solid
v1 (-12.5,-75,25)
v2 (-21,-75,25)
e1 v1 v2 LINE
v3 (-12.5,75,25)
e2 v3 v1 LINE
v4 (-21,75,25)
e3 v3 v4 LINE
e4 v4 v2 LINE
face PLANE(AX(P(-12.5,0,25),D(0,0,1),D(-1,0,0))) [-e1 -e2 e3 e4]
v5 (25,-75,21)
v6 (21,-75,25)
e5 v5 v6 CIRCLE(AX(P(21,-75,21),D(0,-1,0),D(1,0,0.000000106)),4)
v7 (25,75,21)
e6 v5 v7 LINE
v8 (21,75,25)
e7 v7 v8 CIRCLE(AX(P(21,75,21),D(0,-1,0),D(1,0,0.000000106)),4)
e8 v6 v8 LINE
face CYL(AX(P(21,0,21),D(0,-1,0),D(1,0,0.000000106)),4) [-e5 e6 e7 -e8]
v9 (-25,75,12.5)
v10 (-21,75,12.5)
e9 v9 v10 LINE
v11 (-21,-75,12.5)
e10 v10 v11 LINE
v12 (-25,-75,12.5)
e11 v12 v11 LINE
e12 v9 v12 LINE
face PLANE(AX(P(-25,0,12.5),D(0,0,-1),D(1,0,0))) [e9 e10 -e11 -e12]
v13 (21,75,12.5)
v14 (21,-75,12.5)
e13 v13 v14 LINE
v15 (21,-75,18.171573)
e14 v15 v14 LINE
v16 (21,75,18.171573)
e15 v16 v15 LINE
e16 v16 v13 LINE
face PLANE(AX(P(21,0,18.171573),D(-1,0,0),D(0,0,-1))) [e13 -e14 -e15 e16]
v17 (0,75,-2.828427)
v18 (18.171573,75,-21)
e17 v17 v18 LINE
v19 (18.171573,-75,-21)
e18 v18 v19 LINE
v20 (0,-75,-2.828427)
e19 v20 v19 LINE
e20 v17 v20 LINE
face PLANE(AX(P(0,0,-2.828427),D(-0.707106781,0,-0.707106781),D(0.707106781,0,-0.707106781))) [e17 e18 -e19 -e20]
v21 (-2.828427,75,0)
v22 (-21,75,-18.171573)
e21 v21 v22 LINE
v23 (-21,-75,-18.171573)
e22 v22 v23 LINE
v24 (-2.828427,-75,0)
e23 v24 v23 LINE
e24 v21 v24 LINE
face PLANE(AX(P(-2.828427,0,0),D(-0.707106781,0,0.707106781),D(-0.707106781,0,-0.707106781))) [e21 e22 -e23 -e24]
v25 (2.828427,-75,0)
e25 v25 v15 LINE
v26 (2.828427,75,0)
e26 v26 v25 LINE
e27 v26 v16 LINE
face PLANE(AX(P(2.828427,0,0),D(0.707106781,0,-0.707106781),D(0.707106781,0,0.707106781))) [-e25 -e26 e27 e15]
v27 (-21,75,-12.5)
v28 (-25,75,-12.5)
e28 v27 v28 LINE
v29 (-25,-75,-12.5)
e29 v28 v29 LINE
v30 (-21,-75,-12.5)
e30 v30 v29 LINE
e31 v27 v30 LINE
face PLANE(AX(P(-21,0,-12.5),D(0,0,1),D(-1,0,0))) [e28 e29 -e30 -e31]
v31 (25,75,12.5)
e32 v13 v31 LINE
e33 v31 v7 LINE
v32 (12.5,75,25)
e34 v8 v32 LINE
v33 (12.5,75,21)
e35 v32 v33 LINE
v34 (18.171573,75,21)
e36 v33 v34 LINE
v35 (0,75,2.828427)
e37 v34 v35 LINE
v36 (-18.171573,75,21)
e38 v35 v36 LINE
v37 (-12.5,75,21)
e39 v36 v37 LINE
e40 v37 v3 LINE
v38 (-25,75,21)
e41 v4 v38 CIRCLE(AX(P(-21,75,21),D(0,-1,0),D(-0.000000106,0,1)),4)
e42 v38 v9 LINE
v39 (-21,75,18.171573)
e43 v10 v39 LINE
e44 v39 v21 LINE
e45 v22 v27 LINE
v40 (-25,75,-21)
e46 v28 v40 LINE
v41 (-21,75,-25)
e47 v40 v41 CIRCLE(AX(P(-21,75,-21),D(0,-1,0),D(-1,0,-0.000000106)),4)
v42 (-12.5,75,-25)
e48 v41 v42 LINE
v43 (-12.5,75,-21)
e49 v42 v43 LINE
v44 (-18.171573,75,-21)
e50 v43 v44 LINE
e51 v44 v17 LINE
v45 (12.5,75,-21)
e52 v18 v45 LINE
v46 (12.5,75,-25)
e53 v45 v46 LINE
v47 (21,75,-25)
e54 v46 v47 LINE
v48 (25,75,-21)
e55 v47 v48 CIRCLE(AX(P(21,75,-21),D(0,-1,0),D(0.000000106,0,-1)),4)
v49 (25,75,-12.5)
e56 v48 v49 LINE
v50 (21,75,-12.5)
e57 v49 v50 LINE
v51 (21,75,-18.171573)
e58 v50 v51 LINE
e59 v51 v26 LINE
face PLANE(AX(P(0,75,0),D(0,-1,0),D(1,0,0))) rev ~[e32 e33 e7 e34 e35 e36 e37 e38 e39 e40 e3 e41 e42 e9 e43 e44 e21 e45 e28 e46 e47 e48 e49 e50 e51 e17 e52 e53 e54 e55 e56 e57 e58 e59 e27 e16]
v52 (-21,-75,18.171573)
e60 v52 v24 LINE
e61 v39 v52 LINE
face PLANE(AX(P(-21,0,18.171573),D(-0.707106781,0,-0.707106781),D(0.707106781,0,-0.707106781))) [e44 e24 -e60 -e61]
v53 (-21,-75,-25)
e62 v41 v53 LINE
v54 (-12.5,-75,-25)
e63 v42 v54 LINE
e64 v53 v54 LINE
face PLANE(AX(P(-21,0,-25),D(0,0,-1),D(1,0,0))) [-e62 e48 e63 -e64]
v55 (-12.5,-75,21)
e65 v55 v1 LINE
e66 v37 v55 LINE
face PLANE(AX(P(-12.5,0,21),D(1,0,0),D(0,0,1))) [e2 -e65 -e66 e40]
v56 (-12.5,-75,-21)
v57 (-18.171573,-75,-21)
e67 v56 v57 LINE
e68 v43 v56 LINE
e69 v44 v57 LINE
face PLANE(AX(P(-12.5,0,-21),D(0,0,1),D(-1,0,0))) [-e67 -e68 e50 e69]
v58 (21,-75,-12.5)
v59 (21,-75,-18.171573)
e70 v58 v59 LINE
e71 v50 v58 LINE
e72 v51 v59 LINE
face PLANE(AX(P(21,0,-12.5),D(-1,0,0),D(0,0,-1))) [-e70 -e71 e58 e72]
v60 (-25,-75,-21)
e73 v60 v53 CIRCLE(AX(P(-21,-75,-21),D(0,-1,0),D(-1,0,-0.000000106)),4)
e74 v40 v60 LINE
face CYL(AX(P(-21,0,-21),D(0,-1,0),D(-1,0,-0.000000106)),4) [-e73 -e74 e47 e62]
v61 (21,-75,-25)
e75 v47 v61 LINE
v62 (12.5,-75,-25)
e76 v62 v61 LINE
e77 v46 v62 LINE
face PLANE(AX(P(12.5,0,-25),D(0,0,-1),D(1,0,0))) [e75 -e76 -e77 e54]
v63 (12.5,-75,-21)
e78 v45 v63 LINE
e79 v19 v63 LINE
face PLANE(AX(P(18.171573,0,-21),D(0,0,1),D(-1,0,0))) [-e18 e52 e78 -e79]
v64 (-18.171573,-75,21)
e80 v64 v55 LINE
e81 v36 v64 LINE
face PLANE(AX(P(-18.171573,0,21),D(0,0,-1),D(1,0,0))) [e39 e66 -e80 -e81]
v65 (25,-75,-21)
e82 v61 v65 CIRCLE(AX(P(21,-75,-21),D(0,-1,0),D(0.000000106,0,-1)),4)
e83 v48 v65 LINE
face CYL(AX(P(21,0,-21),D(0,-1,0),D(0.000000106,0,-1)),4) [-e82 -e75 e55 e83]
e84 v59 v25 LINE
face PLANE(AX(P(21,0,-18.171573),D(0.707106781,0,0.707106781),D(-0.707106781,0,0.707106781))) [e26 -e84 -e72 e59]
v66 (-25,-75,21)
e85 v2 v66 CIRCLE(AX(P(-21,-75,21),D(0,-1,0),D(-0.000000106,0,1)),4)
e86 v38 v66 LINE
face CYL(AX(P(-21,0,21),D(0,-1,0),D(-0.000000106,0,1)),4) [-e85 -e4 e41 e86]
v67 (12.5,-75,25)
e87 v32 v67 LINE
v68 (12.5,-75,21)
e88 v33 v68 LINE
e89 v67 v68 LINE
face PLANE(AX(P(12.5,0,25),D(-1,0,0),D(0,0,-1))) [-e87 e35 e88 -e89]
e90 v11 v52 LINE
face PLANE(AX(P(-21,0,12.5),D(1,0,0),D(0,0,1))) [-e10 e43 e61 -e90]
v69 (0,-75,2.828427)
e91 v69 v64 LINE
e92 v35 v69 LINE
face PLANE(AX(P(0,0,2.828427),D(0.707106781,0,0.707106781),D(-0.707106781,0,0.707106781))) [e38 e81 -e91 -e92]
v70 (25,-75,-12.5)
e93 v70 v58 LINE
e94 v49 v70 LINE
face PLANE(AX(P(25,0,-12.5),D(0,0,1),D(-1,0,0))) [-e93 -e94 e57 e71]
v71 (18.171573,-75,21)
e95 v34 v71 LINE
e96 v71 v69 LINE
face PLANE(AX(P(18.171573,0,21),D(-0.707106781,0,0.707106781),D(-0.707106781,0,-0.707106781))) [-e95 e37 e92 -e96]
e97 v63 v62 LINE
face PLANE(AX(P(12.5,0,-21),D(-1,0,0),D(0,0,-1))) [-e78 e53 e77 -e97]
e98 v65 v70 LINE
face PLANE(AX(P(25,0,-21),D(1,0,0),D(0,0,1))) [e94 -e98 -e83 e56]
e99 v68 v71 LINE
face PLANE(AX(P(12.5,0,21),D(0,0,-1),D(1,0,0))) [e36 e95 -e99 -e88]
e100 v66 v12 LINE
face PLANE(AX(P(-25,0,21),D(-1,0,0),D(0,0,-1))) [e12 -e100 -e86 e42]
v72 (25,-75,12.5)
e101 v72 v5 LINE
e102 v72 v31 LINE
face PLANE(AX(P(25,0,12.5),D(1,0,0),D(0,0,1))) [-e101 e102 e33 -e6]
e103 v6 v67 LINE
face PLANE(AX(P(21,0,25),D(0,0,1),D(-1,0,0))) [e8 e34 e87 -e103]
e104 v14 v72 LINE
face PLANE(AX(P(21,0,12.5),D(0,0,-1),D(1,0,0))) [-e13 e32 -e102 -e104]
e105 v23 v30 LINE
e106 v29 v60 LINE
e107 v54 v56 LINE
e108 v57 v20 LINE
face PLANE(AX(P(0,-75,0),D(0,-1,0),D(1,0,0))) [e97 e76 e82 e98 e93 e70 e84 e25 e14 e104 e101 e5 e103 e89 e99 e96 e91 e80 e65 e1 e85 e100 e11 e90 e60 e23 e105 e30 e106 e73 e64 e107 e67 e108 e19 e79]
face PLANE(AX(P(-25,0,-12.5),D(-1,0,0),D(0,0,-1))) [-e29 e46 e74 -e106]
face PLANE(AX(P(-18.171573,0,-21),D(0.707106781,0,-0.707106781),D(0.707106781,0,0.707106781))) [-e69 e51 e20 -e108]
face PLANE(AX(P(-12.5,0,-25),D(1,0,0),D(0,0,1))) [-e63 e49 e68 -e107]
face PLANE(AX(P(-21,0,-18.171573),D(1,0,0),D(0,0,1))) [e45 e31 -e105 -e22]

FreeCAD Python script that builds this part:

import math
import FreeCAD as App
import Part
import Sketcher

doc = App.newDocument("Part")
body = doc.addObject("PartDesign::Body", "Body")

sketch1 = doc.addObject("Sketcher::SketchObject", "Sketch")
body.addObject(sketch1)
sketch1.AttachmentSupport = (doc.XZ_Plane, [""])
sketch1.MapMode = "FlatFace"
sketch1.addGeometry(Part.LineSegment(App.Vector(21, 25, 0), App.Vector(12.5, 25, 0)), False)
sketch1.addGeometry(Part.LineSegment(App.Vector(12.5, 25, 0), App.Vector(12.5, 21, 0)), False)
sketch1.addGeometry(Part.LineSegment(App.Vector(12.5, 21, 0), App.Vector(18.171573, 21, 0)), False)
sketch1.addGeometry(Part.LineSegment(App.Vector(18.171573, 21, 0), App.Vector(0, 2.828427, 0)), False)
sketch1.addGeometry(Part.LineSegment(App.Vector(0, 2.828427, 0), App.Vector(-18.171573, 21, 0)), False)
sketch1.addGeometry(Part.LineSegment(App.Vector(-18.171573, 21, 0), App.Vector(-12.5, 21, 0)), False)
sketch1.addGeometry(Part.LineSegment(App.Vector(-12.5, 21, 0), App.Vector(-12.5, 25, 0)), False)
sketch1.addGeometry(Part.LineSegment(App.Vector(-12.5, 25, 0), App.Vector(-21, 25, 0)), False)
sketch1.addGeometry(Part.ArcOfCircle(Part.Circle(App.Vector(-21, 21, 0), App.Vector(0, 0, 1), 4), math.radians(90.000006), math.radians(179.999994)), False)
sketch1.addGeometry(Part.LineSegment(App.Vector(-25, 21, 0), App.Vector(-25, 12.5, 0)), False)
sketch1.addGeometry(Part.LineSegment(App.Vector(-25, 12.5, 0), App.Vector(-21, 12.5, 0)), False)
sketch1.addGeometry(Part.LineSegment(App.Vector(-21, 12.5, 0), App.Vector(-21, 18.171573, 0)), False)
sketch1.addGeometry(Part.LineSegment(App.Vector(-21, 18.171573, 0), App.Vector(-2.828427, 0, 0)), False)
sketch1.addGeometry(Part.LineSegment(App.Vector(-2.828427, 0, 0), App.Vector(-21, -18.171573, 0)), False)
sketch1.addGeometry(Part.LineSegment(App.Vector(-21, -18.171573, 0), App.Vector(-21, -12.5, 0)), False)
sketch1.addGeometry(Part.LineSegment(App.Vector(-21, -12.5, 0), App.Vector(-25, -12.5, 0)), False)
sketch1.addGeometry(Part.LineSegment(App.Vector(-25, -12.5, 0), App.Vector(-25, -21, 0)), False)
sketch1.addGeometry(Part.ArcOfCircle(Part.Circle(App.Vector(-21, -21, 0), App.Vector(0, 0, 1), 4), math.radians(-179.999994), math.radians(-90.000006)), False)
sketch1.addGeometry(Part.LineSegment(App.Vector(-21, -25, 0), App.Vector(-12.5, -25, 0)), False)
sketch1.addGeometry(Part.LineSegment(App.Vector(-12.5, -25, 0), App.Vector(-12.5, -21, 0)), False)
sketch1.addGeometry(Part.LineSegment(App.Vector(-12.5, -21, 0), App.Vector(-18.171573, -21, 0)), False)
sketch1.addGeometry(Part.LineSegment(App.Vector(-18.171573, -21, 0), App.Vector(0, -2.828427, 0)), False)
sketch1.addGeometry(Part.LineSegment(App.Vector(0, -2.828427, 0), App.Vector(18.171573, -21, 0)), False)
sketch1.addGeometry(Part.LineSegment(App.Vector(18.171573, -21, 0), App.Vector(12.5, -21, 0)), False)
sketch1.addGeometry(Part.LineSegment(App.Vector(12.5, -21, 0), App.Vector(12.5, -25, 0)), False)
sketch1.addGeometry(Part.LineSegment(App.Vector(12.5, -25, 0), App.Vector(21, -25, 0)), False)
sketch1.addGeometry(Part.ArcOfCircle(Part.Circle(App.Vector(21, -21, 0), App.Vector(0, 0, 1), 4), math.radians(-89.999994), math.radians(-0.000006)), False)
sketch1.addGeometry(Part.LineSegment(App.Vector(25, -21, 0), App.Vector(25, -12.5, 0)), False)
sketch1.addGeometry(Part.LineSegment(App.Vector(25, -12.5, 0), App.Vector(21, -12.5, 0)), False)
sketch1.addGeometry(Part.LineSegment(App.Vector(21, -12.5, 0), App.Vector(21, -18.171573, 0)), False)
sketch1.addGeometry(Part.LineSegment(App.Vector(21, -18.171573, 0), App.Vector(2.828427, 0, 0)), False)
sketch1.addGeometry(Part.LineSegment(App.Vector(2.828427, 0, 0), App.Vector(21, 18.171573, 0)), False)
sketch1.addGeometry(Part.LineSegment(App.Vector(21, 18.171573, 0), App.Vector(21, 12.5, 0)), False)
sketch1.addGeometry(Part.LineSegment(App.Vector(21, 12.5, 0), App.Vector(25, 12.5, 0)), False)
sketch1.addGeometry(Part.LineSegment(App.Vector(25, 12.5, 0), App.Vector(25, 21, 0)), False)
sketch1.addGeometry(Part.ArcOfCircle(Part.Circle(App.Vector(21, 21, 0), App.Vector(0, 0, 1), 4), math.radians(0.000006), math.radians(89.999994)), False)
sketch1.addConstraint(Sketcher.Constraint("Coincident", 0, 2, 1, 1))
sketch1.addConstraint(Sketcher.Constraint("Coincident", 1, 2, 2, 1))
sketch1.addConstraint(Sketcher.Constraint("Coincident", 2, 2, 3, 1))
sketch1.addConstraint(Sketcher.Constraint("Coincident", 3, 2, 4, 1))
sketch1.addConstraint(Sketcher.Constraint("Coincident", 4, 2, 5, 1))
sketch1.addConstraint(Sketcher.Constraint("Coincident", 5, 2, 6, 1))
sketch1.addConstraint(Sketcher.Constraint("Coincident", 6, 2, 7, 1))
sketch1.addConstraint(Sketcher.Constraint("Tangent", 7, 2, 8, 1))
sketch1.addConstraint(Sketcher.Constraint("Tangent", 8, 2, 9, 1))
sketch1.addConstraint(Sketcher.Constraint("Coincident", 9, 2, 10, 1))
sketch1.addConstraint(Sketcher.Constraint("Coincident", 10, 2, 11, 1))
sketch1.addConstraint(Sketcher.Constraint("Coincident", 11, 2, 12, 1))
sketch1.addConstraint(Sketcher.Constraint("Coincident", 12, 2, 13, 1))
sketch1.addConstraint(Sketcher.Constraint("Coincident", 13, 2, 14, 1))
sketch1.addConstraint(Sketcher.Constraint("Coincident", 14, 2, 15, 1))
sketch1.addConstraint(Sketcher.Constraint("Coincident", 15, 2, 16, 1))
sketch1.addConstraint(Sketcher.Constraint("Tangent", 16, 2, 17, 1))
sketch1.addConstraint(Sketcher.Constraint("Tangent", 17, 2, 18, 1))
sketch1.addConstraint(Sketcher.Constraint("Coincident", 18, 2, 19, 1))
sketch1.addConstraint(Sketcher.Constraint("Coincident", 19, 2, 20, 1))
sketch1.addConstraint(Sketcher.Constraint("Coincident", 20, 2, 21, 1))
sketch1.addConstraint(Sketcher.Constraint("Coincident", 21, 2, 22, 1))
sketch1.addConstraint(Sketcher.Constraint("Coincident", 22, 2, 23, 1))
sketch1.addConstraint(Sketcher.Constraint("Coincident", 23, 2, 24, 1))
sketch1.addConstraint(Sketcher.Constraint("Coincident", 24, 2, 25, 1))
sketch1.addConstraint(Sketcher.Constraint("Tangent", 25, 2, 26, 1))
sketch1.addConstraint(Sketcher.Constraint("Tangent", 26, 2, 27, 1))
sketch1.addConstraint(Sketcher.Constraint("Coincident", 27, 2, 28, 1))
sketch1.addConstraint(Sketcher.Constraint("Coincident", 28, 2, 29, 1))
sketch1.addConstraint(Sketcher.Constraint("Coincident", 29, 2, 30, 1))
sketch1.addConstraint(Sketcher.Constraint("Coincident", 30, 2, 31, 1))
sketch1.addConstraint(Sketcher.Constraint("Coincident", 31, 2, 32, 1))
sketch1.addConstraint(Sketcher.Constraint("Coincident", 32, 2, 33, 1))
sketch1.addConstraint(Sketcher.Constraint("Coincident", 33, 2, 34, 1))
sketch1.addConstraint(Sketcher.Constraint("Tangent", 34, 2, 35, 1))
sketch1.addConstraint(Sketcher.Constraint("Tangent", 35, 2, 0, 1))
sketch1.addConstraint(Sketcher.Constraint("Horizontal", 0))
sketch1.addConstraint(Sketcher.Constraint("Vertical", 1))
sketch1.addConstraint(Sketcher.Constraint("Horizontal", 2))
sketch1.addConstraint(Sketcher.Constraint("Horizontal", 5))
sketch1.addConstraint(Sketcher.Constraint("Vertical", 6))
sketch1.addConstraint(Sketcher.Constraint("Horizontal", 7))
sketch1.addConstraint(Sketcher.Constraint("Vertical", 9))
sketch1.addConstraint(Sketcher.Constraint("Horizontal", 10))
sketch1.addConstraint(Sketcher.Constraint("Vertical", 11))
sketch1.addConstraint(Sketcher.Constraint("Vertical", 14))
sketch1.addConstraint(Sketcher.Constraint("Horizontal", 15))
sketch1.addConstraint(Sketcher.Constraint("Vertical", 16))
sketch1.addConstraint(Sketcher.Constraint("Horizontal", 18))
sketch1.addConstraint(Sketcher.Constraint("Vertical", 19))
sketch1.addConstraint(Sketcher.Constraint("Horizontal", 20))
sketch1.addConstraint(Sketcher.Constraint("Horizontal", 23))
sketch1.addConstraint(Sketcher.Constraint("Vertical", 24))
sketch1.addConstraint(Sketcher.Constraint("Horizontal", 25))
sketch1.addConstraint(Sketcher.Constraint("Vertical", 27))
sketch1.addConstraint(Sketcher.Constraint("Horizontal", 28))
sketch1.addConstraint(Sketcher.Constraint("Vertical", 29))
sketch1.addConstraint(Sketcher.Constraint("Vertical", 32))
sketch1.addConstraint(Sketcher.Constraint("Horizontal", 33))
sketch1.addConstraint(Sketcher.Constraint("Vertical", 34))
sketch1.addConstraint(Sketcher.Constraint("Equal", 8, 17))
sketch1.addConstraint(Sketcher.Constraint("Equal", 17, 26))
sketch1.addConstraint(Sketcher.Constraint("Equal", 26, 35))
sketch1.addConstraint(Sketcher.Constraint("Symmetric", 8, 3, 26, 3, -1, 1))
sketch1.addConstraint(Sketcher.Constraint("Symmetric", 17, 3, 35, 3, -1, 1))
sketch1.addConstraint(Sketcher.Constraint("Symmetric", 1, 2, 19, 2, -1, 1))
sketch1.addConstraint(Sketcher.Constraint("Symmetric", 3, 2, 21, 2, -1, 1))
sketch1.addConstraint(Sketcher.Constraint("Symmetric", 4, 2, 22, 2, -1, 1))
sketch1.addConstraint(Sketcher.Constraint("Symmetric", 10, 2, 28, 2, -1, 1))
sketch1.addConstraint(Sketcher.Constraint("Symmetric", 12, 2, 30, 2, -1, 1))
sketch1.addConstraint(Sketcher.Constraint("Symmetric", 13, 2, 31, 2, -1, 1))
sketch1.addConstraint(Sketcher.Constraint("Symmetric", 17, 3, 26, 3, -2))
sketch1.addConstraint(Sketcher.Constraint("Symmetric", 2, 2, 4, 2, -2))
sketch1.addConstraint(Sketcher.Constraint("Symmetric", 14, 2, 28, 2, -2))
sketch1.addConstraint(Sketcher.Constraint("PointOnObject", 3, 2, -2))
sketch1.addConstraint(Sketcher.Constraint("PointOnObject", 12, 2, -1))
sketch1.addConstraint(Sketcher.Constraint("Perpendicular", 3, 4))
sketch1.addConstraint(Sketcher.Constraint("Parallel", 4, 12))
sketch1.addConstraint(Sketcher.Constraint("Perpendicular", 12, 13))
sketch1.addConstraint(Sketcher.Constraint("Parallel", 13, 21))
sketch1.addConstraint(Sketcher.Constraint("Parallel", 22, 30))
sketch1.addConstraint(Sketcher.Constraint("Horizontal", 35, 3, 1, 2))
sketch1.addConstraint(Sketcher.Constraint("Horizontal", 10, 2, 32, 2))
sketch1.addConstraint(Sketcher.Constraint("Vertical", 7, 2, 10, 2))
sketch1.addConstraint(Sketcher.Constraint("Vertical", 6, 2, 18, 2))
sketch1.addConstraint(Sketcher.Constraint("Vertical", 1, 2, 23, 2))
sketch1.addConstraint(Sketcher.Constraint("Equal", 25, 9))
sketch1.addConstraint(Sketcher.Constraint("Equal", 23, 11))
sketch1.addConstraint(Sketcher.Constraint("Equal", 4, 12))
sketch1.addConstraint(Sketcher.Constraint("Radius", 8, 4.0))
sketch1.addConstraint(Sketcher.Constraint("DistanceX", 0, 2, 0, 1, 8.5))
sketch1.addConstraint(Sketcher.Constraint("DistanceX", 8, 3, -1, 1, 21.0))
sketch1.addConstraint(Sketcher.Constraint("DistanceX", 2, 1, 2, 2, 5.671573))
pad1 = doc.addObject("PartDesign::Pad", "Pad")
body.addObject(pad1)
pad1.Profile = sketch1
pad1.Length = 150
pad1.Midplane = True

doc.recompute()
